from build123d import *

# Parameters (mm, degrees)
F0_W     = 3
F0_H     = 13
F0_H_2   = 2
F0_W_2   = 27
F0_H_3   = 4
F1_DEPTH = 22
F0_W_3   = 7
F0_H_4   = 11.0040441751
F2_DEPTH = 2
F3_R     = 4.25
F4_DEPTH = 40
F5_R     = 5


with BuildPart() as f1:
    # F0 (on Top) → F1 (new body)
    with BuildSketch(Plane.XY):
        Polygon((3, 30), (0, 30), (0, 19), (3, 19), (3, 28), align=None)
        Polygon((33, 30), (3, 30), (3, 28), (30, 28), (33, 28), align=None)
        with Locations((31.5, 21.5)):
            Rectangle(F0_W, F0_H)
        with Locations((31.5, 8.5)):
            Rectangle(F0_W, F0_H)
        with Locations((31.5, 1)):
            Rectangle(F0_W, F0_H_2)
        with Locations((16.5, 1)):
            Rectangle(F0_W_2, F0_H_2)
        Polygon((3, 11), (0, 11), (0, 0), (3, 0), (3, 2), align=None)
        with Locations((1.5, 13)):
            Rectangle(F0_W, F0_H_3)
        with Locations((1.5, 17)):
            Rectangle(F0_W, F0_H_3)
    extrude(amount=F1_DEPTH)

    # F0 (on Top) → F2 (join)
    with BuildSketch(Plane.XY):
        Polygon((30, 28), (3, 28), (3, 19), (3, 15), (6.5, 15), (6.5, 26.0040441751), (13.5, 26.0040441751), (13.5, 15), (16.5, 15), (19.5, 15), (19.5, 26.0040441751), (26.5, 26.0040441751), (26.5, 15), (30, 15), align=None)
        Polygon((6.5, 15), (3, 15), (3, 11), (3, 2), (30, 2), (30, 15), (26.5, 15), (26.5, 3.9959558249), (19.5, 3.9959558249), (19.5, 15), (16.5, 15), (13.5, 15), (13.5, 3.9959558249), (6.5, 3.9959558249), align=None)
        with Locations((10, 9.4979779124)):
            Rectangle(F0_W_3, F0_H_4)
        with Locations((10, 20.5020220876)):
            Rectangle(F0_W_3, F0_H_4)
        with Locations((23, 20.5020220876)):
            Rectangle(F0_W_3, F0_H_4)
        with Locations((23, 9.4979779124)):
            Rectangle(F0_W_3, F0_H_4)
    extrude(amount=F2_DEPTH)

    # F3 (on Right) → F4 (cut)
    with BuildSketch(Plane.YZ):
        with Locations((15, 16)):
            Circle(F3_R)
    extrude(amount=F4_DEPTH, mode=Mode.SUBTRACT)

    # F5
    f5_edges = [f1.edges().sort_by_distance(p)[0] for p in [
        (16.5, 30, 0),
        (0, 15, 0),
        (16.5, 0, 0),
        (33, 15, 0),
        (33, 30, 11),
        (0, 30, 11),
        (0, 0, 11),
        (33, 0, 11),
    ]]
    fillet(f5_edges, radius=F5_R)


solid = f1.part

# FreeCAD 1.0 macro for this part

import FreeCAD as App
import Part
import Sketcher
from FreeCAD import Vector


def edges_at(feature, points):
    """Names of the edges that pass closest to the given points."""
    edges = feature.Shape.Edges
    near = lambda p: min(range(len(edges)), key=lambda i: edges[i].distToShape(Part.Vertex(*p))[0])
    return sorted({f"Edge{near(p) + 1}" for p in points})

doc = App.newDocument("Part")
body = doc.addObject("PartDesign::Body", "Body")

sketch1 = doc.addObject("Sketcher::SketchObject", "Sketch")
body.addObject(sketch1)
sketch1.AttachmentSupport = (doc.XY_Plane, [""])
sketch1.MapMode = "FlatFace"
sketch1.addGeometry([
    Part.LineSegment(Vector(0, 30, 0), Vector(0, 0, 0)),
    Part.LineSegment(Vector(0, 0, 0), Vector(33, 0, 0)),
    Part.LineSegment(Vector(33, 0, 0), Vector(33, 30, 0)),
    Part.LineSegment(Vector(33, 30, 0), Vector(0, 30, 0)),
    Part.LineSegment(Vector(3, 28, 0), Vector(30, 28, 0)),
    Part.LineSegment(Vector(30, 28, 0), Vector(30, 2, 0)),
    Part.LineSegment(Vector(30, 2, 0), Vector(3, 2, 0)),
    Part.LineSegment(Vector(3, 2, 0), Vector(3, 28, 0)),
], False)
sketch1.addConstraint([
    Sketcher.Constraint("Coincident", 0, 2, 1, 1),
    Sketcher.Constraint("Coincident", 1, 2, 2, 1),
    Sketcher.Constraint("Coincident", 2, 2, 3, 1),
    Sketcher.Constraint("Coincident", 3, 2, 0, 1),
    Sketcher.Constraint("Coincident", 4, 2, 5, 1),
    Sketcher.Constraint("Coincident", 5, 2, 6, 1),
    Sketcher.Constraint("Coincident", 6, 2, 7, 1),
    Sketcher.Constraint("Coincident", 7, 2, 4, 1),
    Sketcher.Constraint("Vertical", 0),
    Sketcher.Constraint("Horizontal", 1),
    Sketcher.Constraint("Vertical", 2),
    Sketcher.Constraint("Horizontal", 3),
    Sketcher.Constraint("Horizontal", 4),
    Sketcher.Constraint("Vertical", 5),
    Sketcher.Constraint("Horizontal", 6),
    Sketcher.Constraint("Vertical", 7),
    Sketcher.Constraint("Coincident", 0, 2, -1, 1),
    Sketcher.Constraint("DistanceX", 1, 1, 1, 2, 33.0),
    Sketcher.Constraint("DistanceX", 4, 1, 4, 2, 27.0),
    Sketcher.Constraint("DistanceY", 0, 2, 0, 1, 30.0),
    Sketcher.Constraint("DistanceY", 5, 2, 5, 1, 26.0),
    Sketcher.Constraint("DistanceX", -1, 1, 4, 2, 30.0),
    Sketcher.Constraint("DistanceY", -1, 1, 4, 2, 28.0),
])
pad1 = doc.addObject("PartDesign::Pad", "Pad")
body.addObject(pad1)
pad1.Profile = sketch1
pad1.Length = 22

sketch2 = doc.addObject("Sketcher::SketchObject", "Sketch001")
body.addObject(sketch2)
sketch2.AttachmentSupport = (doc.XY_Plane, [""])
sketch2.MapMode = "FlatFace"
sketch2.addGeometry([
    Part.LineSegment(Vector(30, 28, 0), Vector(3, 28, 0)),
    Part.LineSegment(Vector(3, 28, 0), Vector(3, 2, 0)),
    Part.LineSegment(Vector(3, 2, 0), Vector(30, 2, 0)),
    Part.LineSegment(Vector(30, 2, 0), Vector(30, 28, 0)),
], False)
sketch2.addConstraint([
    Sketcher.Constraint("Coincident", 0, 2, 1, 1),
    Sketcher.Constraint("Coincident", 1, 2, 2, 1),
    Sketcher.Constraint("Coincident", 2, 2, 3, 1),
    Sketcher.Constraint("Coincident", 3, 2, 0, 1),
    Sketcher.Constraint("Horizontal", 0),
    Sketcher.Constraint("Vertical", 1),
    Sketcher.Constraint("Horizontal", 2),
    Sketcher.Constraint("Vertical", 3),
    Sketcher.Constraint("DistanceX", 0, 2, 0, 1, 27.0),
    Sketcher.Constraint("DistanceY", 1, 2, 1, 1, 26.0),
    Sketcher.Constraint("DistanceX", -1, 1, 0, 2, 3.0),
    Sketcher.Constraint("DistanceY", -1, 1, 0, 2, 28.0),
])
pad2 = doc.addObject("PartDesign::Pad", "Pad001")
body.addObject(pad2)
pad2.Profile = sketch2
pad2.Length = 2

sketch3 = doc.addObject("Sketcher::SketchObject", "Sketch002")
body.addObject(sketch3)
sketch3.AttachmentSupport = (doc.YZ_Plane, [""])
sketch3.MapMode = "FlatFace"
sketch3.addGeometry(Part.Circle(Vector(15, 16, 0), Vector(0, 0, 1), 4.2), False)
sketch3.addConstraint([
    Sketcher.Constraint("Diameter", 0, 8.5),
    Sketcher.Constraint("DistanceX", -1, 1, 0, 3, 15.0),
    Sketcher.Constraint("DistanceY", -1, 1, 0, 3, 16.0),
])
pocket1 = doc.addObject("PartDesign::Pocket", "Pocket")
body.addObject(pocket1)
pocket1.Profile = sketch3
pocket1.Length = 40
pocket1.Reversed = True
doc.recompute()

fillet = doc.addObject("PartDesign::Fillet", "Fillet")
body.addObject(fillet)
fillet.Base = (pocket1, edges_at(pocket1, [
    (16.5, 30, 0),
    (0, 15, 0),
    (16.5, 0, 0),
    (33, 15, 0),
    (33, 30, 11),
    (0, 30, 11),
    (0, 0, 11),
    (33, 0, 11),
]))
fillet.Radius = 5

doc.recompute()
